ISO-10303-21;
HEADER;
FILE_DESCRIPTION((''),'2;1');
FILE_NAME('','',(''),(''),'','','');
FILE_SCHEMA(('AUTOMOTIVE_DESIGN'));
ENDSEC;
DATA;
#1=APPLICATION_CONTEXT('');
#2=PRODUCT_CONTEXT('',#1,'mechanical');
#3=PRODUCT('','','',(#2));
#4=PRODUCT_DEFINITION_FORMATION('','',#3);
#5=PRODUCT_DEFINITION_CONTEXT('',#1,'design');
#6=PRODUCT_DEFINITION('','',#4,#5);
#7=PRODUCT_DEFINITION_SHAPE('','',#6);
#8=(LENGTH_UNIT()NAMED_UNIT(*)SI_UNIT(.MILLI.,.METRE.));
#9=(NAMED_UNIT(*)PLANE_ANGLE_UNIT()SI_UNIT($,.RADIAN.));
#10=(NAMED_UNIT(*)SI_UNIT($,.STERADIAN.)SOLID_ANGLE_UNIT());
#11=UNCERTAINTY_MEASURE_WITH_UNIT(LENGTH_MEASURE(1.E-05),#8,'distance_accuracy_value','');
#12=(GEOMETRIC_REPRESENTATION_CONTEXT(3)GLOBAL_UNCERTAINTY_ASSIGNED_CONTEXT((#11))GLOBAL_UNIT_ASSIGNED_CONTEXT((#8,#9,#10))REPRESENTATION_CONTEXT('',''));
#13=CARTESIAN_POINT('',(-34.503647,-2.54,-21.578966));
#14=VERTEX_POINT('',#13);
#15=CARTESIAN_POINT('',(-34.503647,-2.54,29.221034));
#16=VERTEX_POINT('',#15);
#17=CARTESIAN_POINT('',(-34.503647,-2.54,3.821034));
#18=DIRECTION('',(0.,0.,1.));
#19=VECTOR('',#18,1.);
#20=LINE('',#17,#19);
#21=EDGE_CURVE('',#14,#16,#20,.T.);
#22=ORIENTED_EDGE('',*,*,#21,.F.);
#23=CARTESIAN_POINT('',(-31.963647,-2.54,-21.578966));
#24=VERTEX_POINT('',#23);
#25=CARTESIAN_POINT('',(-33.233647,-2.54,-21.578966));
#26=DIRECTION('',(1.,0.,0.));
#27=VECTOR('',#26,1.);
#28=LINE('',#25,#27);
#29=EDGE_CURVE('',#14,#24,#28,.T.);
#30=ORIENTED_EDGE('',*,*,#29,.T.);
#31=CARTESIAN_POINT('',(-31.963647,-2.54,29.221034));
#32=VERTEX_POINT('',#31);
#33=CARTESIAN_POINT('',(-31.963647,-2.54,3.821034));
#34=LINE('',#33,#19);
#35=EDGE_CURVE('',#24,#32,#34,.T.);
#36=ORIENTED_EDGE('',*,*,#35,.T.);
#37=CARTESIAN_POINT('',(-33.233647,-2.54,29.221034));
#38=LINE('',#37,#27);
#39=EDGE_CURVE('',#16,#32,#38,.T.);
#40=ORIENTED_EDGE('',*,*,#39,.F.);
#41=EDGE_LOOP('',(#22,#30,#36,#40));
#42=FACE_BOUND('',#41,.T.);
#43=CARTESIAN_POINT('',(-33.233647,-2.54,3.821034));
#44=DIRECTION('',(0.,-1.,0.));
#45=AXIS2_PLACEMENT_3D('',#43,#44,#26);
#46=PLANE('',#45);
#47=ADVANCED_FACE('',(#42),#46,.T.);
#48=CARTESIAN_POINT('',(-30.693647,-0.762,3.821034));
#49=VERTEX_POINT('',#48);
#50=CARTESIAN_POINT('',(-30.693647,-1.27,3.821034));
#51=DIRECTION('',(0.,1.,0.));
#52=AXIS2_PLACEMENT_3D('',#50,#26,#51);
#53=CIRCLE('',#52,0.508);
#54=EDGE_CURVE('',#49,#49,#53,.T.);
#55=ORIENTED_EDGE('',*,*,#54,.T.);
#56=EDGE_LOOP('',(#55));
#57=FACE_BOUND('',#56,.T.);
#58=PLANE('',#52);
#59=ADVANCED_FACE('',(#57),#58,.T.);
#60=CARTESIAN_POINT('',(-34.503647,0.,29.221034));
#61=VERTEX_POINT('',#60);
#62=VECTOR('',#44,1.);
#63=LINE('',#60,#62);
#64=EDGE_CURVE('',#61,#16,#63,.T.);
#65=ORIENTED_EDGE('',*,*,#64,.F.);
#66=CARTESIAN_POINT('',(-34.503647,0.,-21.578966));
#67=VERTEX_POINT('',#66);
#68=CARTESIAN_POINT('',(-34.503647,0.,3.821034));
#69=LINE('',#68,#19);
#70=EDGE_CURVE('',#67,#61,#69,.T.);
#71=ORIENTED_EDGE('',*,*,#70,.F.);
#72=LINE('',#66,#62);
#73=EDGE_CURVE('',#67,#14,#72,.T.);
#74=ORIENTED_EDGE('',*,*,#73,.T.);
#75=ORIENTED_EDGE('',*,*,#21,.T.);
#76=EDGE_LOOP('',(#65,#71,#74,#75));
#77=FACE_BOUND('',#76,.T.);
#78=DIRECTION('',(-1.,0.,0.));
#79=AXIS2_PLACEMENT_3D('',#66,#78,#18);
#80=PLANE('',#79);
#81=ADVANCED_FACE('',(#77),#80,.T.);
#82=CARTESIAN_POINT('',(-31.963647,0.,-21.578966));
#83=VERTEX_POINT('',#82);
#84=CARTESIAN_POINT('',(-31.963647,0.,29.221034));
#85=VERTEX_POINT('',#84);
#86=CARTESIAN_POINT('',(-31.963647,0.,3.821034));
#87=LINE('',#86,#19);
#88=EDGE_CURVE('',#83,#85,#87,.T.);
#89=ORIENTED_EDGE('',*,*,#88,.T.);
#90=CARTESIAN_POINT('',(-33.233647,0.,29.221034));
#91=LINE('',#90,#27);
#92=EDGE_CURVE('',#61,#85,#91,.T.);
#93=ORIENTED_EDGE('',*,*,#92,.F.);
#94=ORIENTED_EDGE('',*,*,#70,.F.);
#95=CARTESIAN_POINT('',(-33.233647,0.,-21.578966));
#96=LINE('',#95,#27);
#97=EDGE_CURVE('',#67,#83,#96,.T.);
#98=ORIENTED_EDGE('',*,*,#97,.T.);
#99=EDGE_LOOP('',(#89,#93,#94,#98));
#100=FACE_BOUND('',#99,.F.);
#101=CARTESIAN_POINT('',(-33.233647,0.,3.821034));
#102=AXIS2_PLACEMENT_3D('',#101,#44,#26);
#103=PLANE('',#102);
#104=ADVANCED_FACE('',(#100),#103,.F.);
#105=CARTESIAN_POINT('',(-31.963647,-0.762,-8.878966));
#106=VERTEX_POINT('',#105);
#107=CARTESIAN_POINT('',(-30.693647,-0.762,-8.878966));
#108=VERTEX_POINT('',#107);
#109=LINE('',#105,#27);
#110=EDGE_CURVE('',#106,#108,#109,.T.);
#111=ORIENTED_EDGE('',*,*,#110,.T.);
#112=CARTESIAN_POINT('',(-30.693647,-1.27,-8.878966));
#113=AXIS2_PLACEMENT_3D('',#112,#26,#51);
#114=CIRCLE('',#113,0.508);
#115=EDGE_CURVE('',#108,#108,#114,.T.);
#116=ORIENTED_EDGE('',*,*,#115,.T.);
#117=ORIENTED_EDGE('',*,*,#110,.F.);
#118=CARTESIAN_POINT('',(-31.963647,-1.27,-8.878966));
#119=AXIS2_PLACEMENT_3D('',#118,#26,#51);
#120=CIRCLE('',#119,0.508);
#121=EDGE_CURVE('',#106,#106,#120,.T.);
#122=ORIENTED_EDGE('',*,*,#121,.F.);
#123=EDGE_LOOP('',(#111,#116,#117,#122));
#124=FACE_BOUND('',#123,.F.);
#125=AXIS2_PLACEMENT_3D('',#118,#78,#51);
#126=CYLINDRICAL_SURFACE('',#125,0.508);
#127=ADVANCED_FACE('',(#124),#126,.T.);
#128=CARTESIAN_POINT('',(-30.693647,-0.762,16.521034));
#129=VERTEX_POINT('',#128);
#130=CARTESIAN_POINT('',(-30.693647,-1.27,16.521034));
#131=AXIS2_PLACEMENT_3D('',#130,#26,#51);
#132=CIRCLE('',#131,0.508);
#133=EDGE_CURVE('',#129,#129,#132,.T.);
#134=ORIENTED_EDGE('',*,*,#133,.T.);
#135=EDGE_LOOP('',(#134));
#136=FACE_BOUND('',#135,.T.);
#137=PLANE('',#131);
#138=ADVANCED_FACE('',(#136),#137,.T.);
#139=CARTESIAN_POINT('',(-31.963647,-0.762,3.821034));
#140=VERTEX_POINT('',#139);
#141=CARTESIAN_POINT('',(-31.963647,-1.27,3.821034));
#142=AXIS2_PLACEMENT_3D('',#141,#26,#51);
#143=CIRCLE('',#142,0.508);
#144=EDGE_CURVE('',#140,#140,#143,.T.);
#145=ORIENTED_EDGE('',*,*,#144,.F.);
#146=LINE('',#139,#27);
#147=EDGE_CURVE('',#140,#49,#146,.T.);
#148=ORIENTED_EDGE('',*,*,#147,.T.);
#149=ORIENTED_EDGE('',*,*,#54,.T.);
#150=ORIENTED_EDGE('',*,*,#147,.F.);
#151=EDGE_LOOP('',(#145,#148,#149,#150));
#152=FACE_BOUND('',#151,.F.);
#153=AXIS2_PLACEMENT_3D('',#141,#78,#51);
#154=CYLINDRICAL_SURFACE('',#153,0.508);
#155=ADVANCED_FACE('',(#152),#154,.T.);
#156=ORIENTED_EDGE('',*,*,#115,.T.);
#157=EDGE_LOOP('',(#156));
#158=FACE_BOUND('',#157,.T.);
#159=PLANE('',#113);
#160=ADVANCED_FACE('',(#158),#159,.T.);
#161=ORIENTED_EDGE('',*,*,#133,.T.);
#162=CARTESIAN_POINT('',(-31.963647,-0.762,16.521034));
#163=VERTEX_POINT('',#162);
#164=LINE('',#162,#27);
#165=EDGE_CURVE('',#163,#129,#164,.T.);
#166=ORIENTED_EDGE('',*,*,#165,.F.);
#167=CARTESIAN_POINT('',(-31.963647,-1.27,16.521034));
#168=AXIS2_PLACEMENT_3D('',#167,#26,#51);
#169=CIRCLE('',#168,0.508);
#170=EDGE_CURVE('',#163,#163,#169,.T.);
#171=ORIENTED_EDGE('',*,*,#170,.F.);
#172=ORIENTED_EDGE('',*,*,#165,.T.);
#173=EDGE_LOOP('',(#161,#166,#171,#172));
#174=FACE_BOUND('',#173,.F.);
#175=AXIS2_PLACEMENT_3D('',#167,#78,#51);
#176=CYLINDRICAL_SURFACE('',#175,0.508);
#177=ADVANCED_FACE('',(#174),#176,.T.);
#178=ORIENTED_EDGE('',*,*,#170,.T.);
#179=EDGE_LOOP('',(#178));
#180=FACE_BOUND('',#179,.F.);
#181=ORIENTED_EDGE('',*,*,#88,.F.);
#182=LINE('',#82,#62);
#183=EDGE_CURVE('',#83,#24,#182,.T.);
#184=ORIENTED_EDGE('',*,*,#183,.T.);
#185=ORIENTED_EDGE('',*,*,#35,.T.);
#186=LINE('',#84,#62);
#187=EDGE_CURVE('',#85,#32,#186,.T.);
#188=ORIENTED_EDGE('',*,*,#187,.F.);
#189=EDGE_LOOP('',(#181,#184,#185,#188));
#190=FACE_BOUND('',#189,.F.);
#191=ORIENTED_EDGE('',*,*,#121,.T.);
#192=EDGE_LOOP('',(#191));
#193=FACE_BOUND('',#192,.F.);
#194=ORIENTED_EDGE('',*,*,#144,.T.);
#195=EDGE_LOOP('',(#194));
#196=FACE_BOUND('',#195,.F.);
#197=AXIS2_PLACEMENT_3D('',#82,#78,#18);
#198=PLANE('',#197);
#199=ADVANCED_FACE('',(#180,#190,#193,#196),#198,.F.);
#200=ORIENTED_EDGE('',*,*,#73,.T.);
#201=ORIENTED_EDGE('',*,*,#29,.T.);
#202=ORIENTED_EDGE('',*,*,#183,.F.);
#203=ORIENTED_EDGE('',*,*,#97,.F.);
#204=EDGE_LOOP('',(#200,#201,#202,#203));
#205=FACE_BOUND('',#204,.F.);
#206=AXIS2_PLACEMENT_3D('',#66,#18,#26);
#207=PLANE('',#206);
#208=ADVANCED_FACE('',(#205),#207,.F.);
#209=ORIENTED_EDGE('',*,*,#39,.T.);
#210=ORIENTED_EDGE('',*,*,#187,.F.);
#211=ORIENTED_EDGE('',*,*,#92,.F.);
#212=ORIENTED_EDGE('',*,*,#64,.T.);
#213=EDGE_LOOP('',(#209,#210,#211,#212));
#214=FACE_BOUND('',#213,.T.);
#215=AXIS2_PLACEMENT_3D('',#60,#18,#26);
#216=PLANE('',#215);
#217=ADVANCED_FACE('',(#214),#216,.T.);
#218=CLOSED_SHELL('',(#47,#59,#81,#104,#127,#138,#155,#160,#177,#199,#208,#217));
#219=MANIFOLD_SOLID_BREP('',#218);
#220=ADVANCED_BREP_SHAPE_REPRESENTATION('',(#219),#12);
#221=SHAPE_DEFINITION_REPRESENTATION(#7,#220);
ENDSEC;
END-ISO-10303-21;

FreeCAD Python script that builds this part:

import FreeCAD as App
import Part
import Sketcher
Q = App.Units.Quantity


def add_polygon(sketch, points):
    """Adds a closed chain of lines whose ends are joined by coincident constraints."""
    first, n = sketch.GeometryCount, len(points)
    for a, b in zip(points, points[1:] + points[:1]):
        sketch.addGeometry(Part.LineSegment(App.Vector(*a, 0), App.Vector(*b, 0)), False)
    for i in range(n):
        sketch.addConstraint(Sketcher.Constraint("Coincident", first + i, 2, first + (i + 1) % n, 1))

doc = App.newDocument("Part")
params = doc.addObject("Spreadsheet::Sheet", "Params")
for row, (alias, value) in enumerate([
    ("sketch1_height", "2 in"),
    ("sketch1_width", "0.1 in"),
    ("pad1_length", "0.1 in"),
    ("sketch2_diameter", "0.04 in"),
    ("pad2_length", "0.05 in"),
    ("sketch3_diameter", "0.04 in"),
    ("pad3_length", "0.05 in"),
], start=1):
    params.set(f"A{row}", alias)
    params.set(f"B{row}", "=" + value)
    params.setAlias(f"B{row}", alias)

body = doc.addObject("PartDesign::Body", "Body")

sketch1 = body.newObject("Sketcher::SketchObject", "Sketch")
sketch1.AttachmentSupport = (doc.getObject("XZ_Plane"), [""])
sketch1.MapMode = "FlatFace"
add_polygon(sketch1, [(-34.503647, 29.221034), (-34.503647, -21.578966), (-31.963647, -21.578966), (-31.963647, 29.221034)])
sketch1.addConstraint(Sketcher.Constraint("Vertical", 0))
sketch1.addConstraint(Sketcher.Constraint("Horizontal", 1))
sketch1.addConstraint(Sketcher.Constraint("Vertical", 2))
sketch1.addConstraint(Sketcher.Constraint("Horizontal", 3))
sketch1.addConstraint(Sketcher.Constraint("DistanceY", 0, 2, 0, 1, Q("2 in")))
sketch1.addConstraint(Sketcher.Constraint("DistanceX", 1, 1, 1, 2, Q("0.1 in")))
sketch1.addConstraint(Sketcher.Constraint("DistanceX", 0, 2, -1, 1, Q("34.503647 mm")))
sketch1.addConstraint(Sketcher.Constraint("DistanceY", 0, 2, -1, 1, Q("21.578966 mm")))
sketch1.setExpression("Constraints[8]", "Params.sketch1_height")
sketch1.setExpression("Constraints[9]", "Params.sketch1_width")
pad1 = body.newObject("PartDesign::Pad", "Pad")
pad1.Profile = sketch1
pad1.setExpression("Length", "Params.pad1_length")

sketch2 = body.newObject("Sketcher::SketchObject", "Sketch001")
sketch2.AttachmentSupport = (doc.getObject("YZ_Plane"), [""])
sketch2.MapMode = "FlatFace"
sketch2.AttachmentOffset = App.Placement(App.Vector(0, 0, -31.963647), App.Rotation())
sketch2.addGeometry(Part.Circle(App.Vector(-1.27, 16.521034, 0), App.Vector(0, 0, 1), 0.508), False)
sketch2.addGeometry(Part.Circle(App.Vector(-1.27, 3.821034, 0), App.Vector(0, 0, 1), 0.508), False)
sketch2.addConstraint(Sketcher.Constraint("Equal", 0, 1))
sketch2.addConstraint(Sketcher.Constraint("Vertical", 0, 3, 1, 3))
sketch2.addConstraint(Sketcher.Constraint("Diameter", 0, Q("0.04 in")))
sketch2.addConstraint(Sketcher.Constraint("DistanceY", 1, 3, 0, 3, Q("0.5 in")))
sketch2.addConstraint(Sketcher.Constraint("DistanceX", 0, 3, -1, 1, Q("0.05 in")))
sketch2.addConstraint(Sketcher.Constraint("DistanceY", -1, 1, 0, 3, Q("16.521034 mm")))
sketch2.setExpression("Constraints[2]", "Params.sketch2_diameter")
pad2 = body.newObject("PartDesign::Pad", "Pad001")
pad2.Profile = sketch2
pad2.setExpression("Length", "Params.pad2_length")

sketch3 = body.newObject("Sketcher::SketchObject", "Sketch002")
sketch3.AttachmentSupport = (doc.getObject("YZ_Plane"), [""])
sketch3.MapMode = "FlatFace"
sketch3.AttachmentOffset = App.Placement(App.Vector(0, 0, -31.963647), App.Rotation())
sketch3.addGeometry(Part.Circle(App.Vector(-1.27, -8.878966, 0), App.Vector(0, 0, 1), 0.508), False)
sketch3.addConstraint(Sketcher.Constraint("Diameter", 0, Q("0.04 in")))
sketch3.addConstraint(Sketcher.Constraint("DistanceX", 0, 3, -1, 1, Q("0.05 in")))
sketch3.addConstraint(Sketcher.Constraint("DistanceY", 0, 3, -1, 1, Q("8.878966 mm")))
sketch3.setExpression("Constraints[0]", "Params.sketch3_diameter")
pad3 = body.newObject("PartDesign::Pad", "Pad002")
pad3.Profile = sketch3
pad3.setExpression("Length", "Params.pad3_length")

doc.recompute()
